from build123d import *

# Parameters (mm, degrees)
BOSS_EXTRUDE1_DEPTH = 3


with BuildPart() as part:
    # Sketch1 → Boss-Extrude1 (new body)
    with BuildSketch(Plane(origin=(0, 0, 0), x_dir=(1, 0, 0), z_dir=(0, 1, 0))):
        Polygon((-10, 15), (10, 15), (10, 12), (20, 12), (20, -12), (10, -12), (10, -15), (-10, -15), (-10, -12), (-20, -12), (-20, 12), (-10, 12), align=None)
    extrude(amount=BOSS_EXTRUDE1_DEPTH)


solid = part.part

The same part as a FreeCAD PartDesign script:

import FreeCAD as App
import Part
import Sketcher
Q = App.Units.Quantity

doc = App.newDocument("Part")
body = doc.addObject("PartDesign::Body", "Body")

sketch1 = doc.addObject("Sketcher::SketchObject", "Sketch")
body.addObject(sketch1)
sketch1.AttachmentSupport = (doc.XZ_Plane, [""])
sketch1.MapMode = "FlatFace"
sketch1.addGeometry([
    Part.LineSegment(App.Vector(10, -15, 0), App.Vector(-10, -15, 0)),
    Part.LineSegment(App.Vector(-10, -15, 0), App.Vector(-10, -12, 0)),
    Part.LineSegment(App.Vector(-10, -12, 0), App.Vector(-20, -12, 0)),
    Part.LineSegment(App.Vector(-20, -12, 0), App.Vector(-20, 12, 0)),
    Part.LineSegment(App.Vector(-20, 12, 0), App.Vector(-10, 12, 0)),
    Part.LineSegment(App.Vector(-10, 12, 0), App.Vector(-10, 15, 0)),
    Part.LineSegment(App.Vector(-10, 15, 0), App.Vector(10, 15, 0)),
    Part.LineSegment(App.Vector(10, 15, 0), App.Vector(10, 12, 0)),
    Part.LineSegment(App.Vector(10, 12, 0), App.Vector(20, 12, 0)),
    Part.LineSegment(App.Vector(20, 12, 0), App.Vector(20, -12, 0)),
    Part.LineSegment(App.Vector(20, -12, 0), App.Vector(10, -12, 0)),
    Part.LineSegment(App.Vector(10, -12, 0), App.Vector(10, -15, 0)),
], False)
sketch1.addConstraint([
    Sketcher.Constraint("Coincident", 0, 2, 1, 1),
    Sketcher.Constraint("Coincident", 1, 2, 2, 1),
    Sketcher.Constraint("Coincident", 2, 2, 3, 1),
    Sketcher.Constraint("Coincident", 3, 2, 4, 1),
    Sketcher.Constraint("Coincident", 4, 2, 5, 1),
    Sketcher.Constraint("Coincident", 5, 2, 6, 1),
    Sketcher.Constraint("Coincident", 6, 2, 7, 1),
    Sketcher.Constraint("Coincident", 7, 2, 8, 1),
    Sketcher.Constraint("Coincident", 8, 2, 9, 1),
    Sketcher.Constraint("Coincident", 9, 2, 10, 1),
    Sketcher.Constraint("Coincident", 10, 2, 11, 1),
    Sketcher.Constraint("Coincident", 11, 2, 0, 1),
    Sketcher.Constraint("Horizontal", 0),
    Sketcher.Constraint("Vertical", 1),
    Sketcher.Constraint("Horizontal", 2),
    Sketcher.Constraint("Vertical", 3),
    Sketcher.Constraint("Horizontal", 4),
    Sketcher.Constraint("Vertical", 5),
    Sketcher.Constraint("Horizontal", 6),
    Sketcher.Constraint("Vertical", 7),
    Sketcher.Constraint("Horizontal", 8),
    Sketcher.Constraint("Vertical", 9),
    Sketcher.Constraint("Horizontal", 10),
    Sketcher.Constraint("Vertical", 11),
    Sketcher.Constraint("Symmetric", 0, 2, 6, 2, -1, 1),
    Sketcher.Constraint("Symmetric", 2, 2, 8, 2, -1, 1),
    Sketcher.Constraint("Symmetric", 4, 2, 10, 2, -1, 1),
    Sketcher.Constraint("Symmetric", 4, 2, 7, 2, -2),
    Sketcher.Constraint("DistanceX", 0, 2, 0, 1, Q("20 mm")),
    Sketcher.Constraint("DistanceX", 2, 2, 2, 1, Q("10 mm")),
    Sketcher.Constraint("DistanceY", 1, 1, 1, 2, Q("3 mm")),
    Sketcher.Constraint("DistanceY", 3, 1, 3, 2, Q("24 mm")),
])
pad1 = doc.addObject("PartDesign::Pad", "Pad")
body.addObject(pad1)
pad1.Profile = sketch1
pad1.Length = 3
pad1.Reversed = True

doc.recompute()
